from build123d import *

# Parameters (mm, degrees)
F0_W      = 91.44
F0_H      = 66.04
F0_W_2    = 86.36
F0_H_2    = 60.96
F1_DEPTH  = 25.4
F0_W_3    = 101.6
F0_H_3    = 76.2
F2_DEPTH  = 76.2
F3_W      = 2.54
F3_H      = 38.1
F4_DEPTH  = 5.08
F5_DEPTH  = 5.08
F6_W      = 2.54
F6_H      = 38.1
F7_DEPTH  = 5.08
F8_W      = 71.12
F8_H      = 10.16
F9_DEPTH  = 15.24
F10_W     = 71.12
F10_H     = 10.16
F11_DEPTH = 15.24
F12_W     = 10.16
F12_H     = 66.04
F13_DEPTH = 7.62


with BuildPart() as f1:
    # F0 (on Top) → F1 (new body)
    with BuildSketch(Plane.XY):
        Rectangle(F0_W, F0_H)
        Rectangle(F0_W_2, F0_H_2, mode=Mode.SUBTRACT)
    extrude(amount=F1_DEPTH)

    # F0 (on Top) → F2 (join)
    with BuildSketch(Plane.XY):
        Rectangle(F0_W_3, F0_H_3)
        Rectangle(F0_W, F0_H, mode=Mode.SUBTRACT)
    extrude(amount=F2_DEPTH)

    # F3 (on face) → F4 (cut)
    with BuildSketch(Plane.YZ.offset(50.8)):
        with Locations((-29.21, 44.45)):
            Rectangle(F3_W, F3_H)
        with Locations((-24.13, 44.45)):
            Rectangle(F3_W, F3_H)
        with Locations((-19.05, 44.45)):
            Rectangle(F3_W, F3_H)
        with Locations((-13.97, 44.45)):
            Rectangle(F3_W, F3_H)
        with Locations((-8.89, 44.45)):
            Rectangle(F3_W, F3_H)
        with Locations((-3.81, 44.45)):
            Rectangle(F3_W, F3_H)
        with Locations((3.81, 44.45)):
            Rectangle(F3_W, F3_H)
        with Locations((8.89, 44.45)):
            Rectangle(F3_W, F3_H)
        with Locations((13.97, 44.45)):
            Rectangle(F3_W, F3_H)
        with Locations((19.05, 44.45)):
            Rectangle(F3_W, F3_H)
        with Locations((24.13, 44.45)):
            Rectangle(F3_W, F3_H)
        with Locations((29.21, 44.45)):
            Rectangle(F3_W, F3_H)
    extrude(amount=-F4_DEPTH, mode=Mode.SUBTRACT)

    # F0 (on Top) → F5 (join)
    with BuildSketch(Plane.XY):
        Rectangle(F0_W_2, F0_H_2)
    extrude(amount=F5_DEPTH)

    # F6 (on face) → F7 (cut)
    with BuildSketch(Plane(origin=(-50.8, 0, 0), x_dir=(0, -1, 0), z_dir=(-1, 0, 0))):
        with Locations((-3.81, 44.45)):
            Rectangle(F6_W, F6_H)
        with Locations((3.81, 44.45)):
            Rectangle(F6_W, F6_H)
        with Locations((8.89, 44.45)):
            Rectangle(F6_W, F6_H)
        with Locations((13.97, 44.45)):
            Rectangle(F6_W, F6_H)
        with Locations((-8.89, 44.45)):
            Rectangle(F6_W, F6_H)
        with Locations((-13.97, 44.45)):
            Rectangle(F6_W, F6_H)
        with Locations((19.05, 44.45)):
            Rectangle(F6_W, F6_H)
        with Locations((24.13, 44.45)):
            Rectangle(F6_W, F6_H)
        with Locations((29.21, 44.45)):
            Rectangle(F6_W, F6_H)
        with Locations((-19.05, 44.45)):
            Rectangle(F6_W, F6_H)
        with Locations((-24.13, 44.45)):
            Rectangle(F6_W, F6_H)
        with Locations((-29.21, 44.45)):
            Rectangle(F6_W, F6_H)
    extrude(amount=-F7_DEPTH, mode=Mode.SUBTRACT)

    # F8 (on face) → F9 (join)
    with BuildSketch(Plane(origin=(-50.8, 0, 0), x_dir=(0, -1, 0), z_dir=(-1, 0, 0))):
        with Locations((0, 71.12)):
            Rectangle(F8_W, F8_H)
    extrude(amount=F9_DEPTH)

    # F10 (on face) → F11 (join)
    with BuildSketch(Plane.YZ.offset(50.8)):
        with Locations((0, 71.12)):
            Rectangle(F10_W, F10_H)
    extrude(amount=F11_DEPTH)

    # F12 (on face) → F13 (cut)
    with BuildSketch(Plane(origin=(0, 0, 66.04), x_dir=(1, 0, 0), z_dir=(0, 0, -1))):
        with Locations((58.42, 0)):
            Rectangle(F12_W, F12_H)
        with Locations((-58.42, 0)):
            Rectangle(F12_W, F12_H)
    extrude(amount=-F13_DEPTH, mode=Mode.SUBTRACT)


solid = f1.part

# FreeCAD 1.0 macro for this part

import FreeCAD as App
import Part
import Sketcher
Q = App.Units.Quantity

doc = App.newDocument("Part")
body = doc.addObject("PartDesign::Body", "Body")

# Sketch on XY plane
sketch1 = body.newObject("Sketcher::SketchObject", "Sketch")
sketch1.AttachmentSupport = (doc.getObject("XY_Plane"), [""])
sketch1.MapMode = "FlatFace"
sketch1.addGeometry(Part.LineSegment(App.Vector(-45.72, 33.02, 0), App.Vector(-45.72, -33.02, 0)), False)
sketch1.addGeometry(Part.LineSegment(App.Vector(-45.72, -33.02, 0), App.Vector(45.72, -33.02, 0)), False)
sketch1.addGeometry(Part.LineSegment(App.Vector(45.72, -33.02, 0), App.Vector(45.72, 33.02, 0)), False)
sketch1.addGeometry(Part.LineSegment(App.Vector(45.72, 33.02, 0), App.Vector(-45.72, 33.02, 0)), False)
sketch1.addGeometry(Part.LineSegment(App.Vector(43.18, -30.48, 0), App.Vector(-43.18, -30.48, 0)), False)
sketch1.addGeometry(Part.LineSegment(App.Vector(-43.18, -30.48, 0), App.Vector(-43.18, 30.48, 0)), False)
sketch1.addGeometry(Part.LineSegment(App.Vector(-43.18, 30.48, 0), App.Vector(43.18, 30.48, 0)), False)
sketch1.addGeometry(Part.LineSegment(App.Vector(43.18, 30.48, 0), App.Vector(43.18, -30.48, 0)), False)
sketch1.addConstraint(Sketcher.Constraint("Coincident", 0, 2, 1, 1))
sketch1.addConstraint(Sketcher.Constraint("Coincident", 1, 2, 2, 1))
sketch1.addConstraint(Sketcher.Constraint("Coincident", 2, 2, 3, 1))
sketch1.addConstraint(Sketcher.Constraint("Coincident", 3, 2, 0, 1))
sketch1.addConstraint(Sketcher.Constraint("Coincident", 4, 2, 5, 1))
sketch1.addConstraint(Sketcher.Constraint("Coincident", 5, 2, 6, 1))
sketch1.addConstraint(Sketcher.Constraint("Coincident", 6, 2, 7, 1))
sketch1.addConstraint(Sketcher.Constraint("Coincident", 7, 2, 4, 1))
sketch1.addConstraint(Sketcher.Constraint("Vertical", 0))
sketch1.addConstraint(Sketcher.Constraint("Horizontal", 1))
sketch1.addConstraint(Sketcher.Constraint("Vertical", 2))
sketch1.addConstraint(Sketcher.Constraint("Horizontal", 3))
sketch1.addConstraint(Sketcher.Constraint("Horizontal", 4))
sketch1.addConstraint(Sketcher.Constraint("Vertical", 5))
sketch1.addConstraint(Sketcher.Constraint("Horizontal", 6))
sketch1.addConstraint(Sketcher.Constraint("Vertical", 7))
sketch1.addConstraint(Sketcher.Constraint("Symmetric", 0, 2, 2, 2, -1, 1))
sketch1.addConstraint(Sketcher.Constraint("Symmetric", 4, 2, 6, 2, -1, 1))
sketch1.addConstraint(Sketcher.Constraint("DistanceX", 1, 1, 1, 2, Q("3.6 in")))
sketch1.addConstraint(Sketcher.Constraint("DistanceX", 4, 2, 4, 1, Q("3.4 in")))
sketch1.addConstraint(Sketcher.Constraint("DistanceY", 0, 2, 0, 1, Q("2.6 in")))
sketch1.addConstraint(Sketcher.Constraint("DistanceY", 5, 1, 5, 2, Q("2.4 in")))
pad1 = body.newObject("PartDesign::Pad", "Pad")
pad1.Profile = sketch1
pad1.Length = Q("1 in")

# Sketch on XY plane
sketch2 = body.newObject("Sketcher::SketchObject", "Sketch001")
sketch2.AttachmentSupport = (doc.getObject("XY_Plane"), [""])
sketch2.MapMode = "FlatFace"
sketch2.addGeometry(Part.LineSegment(App.Vector(-50.8, 38.1, 0), App.Vector(-50.8, -38.1, 0)), False)
sketch2.addGeometry(Part.LineSegment(App.Vector(-50.8, -38.1, 0), App.Vector(50.8, -38.1, 0)), False)
sketch2.addGeometry(Part.LineSegment(App.Vector(50.8, -38.1, 0), App.Vector(50.8, 38.1, 0)), False)
sketch2.addGeometry(Part.LineSegment(App.Vector(50.8, 38.1, 0), App.Vector(-50.8, 38.1, 0)), False)
sketch2.addGeometry(Part.LineSegment(App.Vector(45.72, -33.02, 0), App.Vector(-45.72, -33.02, 0)), False)
sketch2.addGeometry(Part.LineSegment(App.Vector(-45.72, -33.02, 0), App.Vector(-45.72, 33.02, 0)), False)
sketch2.addGeometry(Part.LineSegment(App.Vector(-45.72, 33.02, 0), App.Vector(45.72, 33.02, 0)), False)
sketch2.addGeometry(Part.LineSegment(App.Vector(45.72, 33.02, 0), App.Vector(45.72, -33.02, 0)), False)
sketch2.addConstraint(Sketcher.Constraint("Coincident", 0, 2, 1, 1))
sketch2.addConstraint(Sketcher.Constraint("Coincident", 1, 2, 2, 1))
sketch2.addConstraint(Sketcher.Constraint("Coincident", 2, 2, 3, 1))
sketch2.addConstraint(Sketcher.Constraint("Coincident", 3, 2, 0, 1))
sketch2.addConstraint(Sketcher.Constraint("Coincident", 4, 2, 5, 1))
sketch2.addConstraint(Sketcher.Constraint("Coincident", 5, 2, 6, 1))
sketch2.addConstraint(Sketcher.Constraint("Coincident", 6, 2, 7, 1))
sketch2.addConstraint(Sketcher.Constraint("Coincident", 7, 2, 4, 1))
sketch2.addConstraint(Sketcher.Constraint("Vertical", 0))
sketch2.addConstraint(Sketcher.Constraint("Horizontal", 1))
sketch2.addConstraint(Sketcher.Constraint("Vertical", 2))
sketch2.addConstraint(Sketcher.Constraint("Horizontal", 3))
sketch2.addConstraint(Sketcher.Constraint("Horizontal", 4))
sketch2.addConstraint(Sketcher.Constraint("Vertical", 5))
sketch2.addConstraint(Sketcher.Constraint("Horizontal", 6))
sketch2.addConstraint(Sketcher.Constraint("Vertical", 7))
sketch2.addConstraint(Sketcher.Constraint("Symmetric", 0, 2, 2, 2, -1, 1))
sketch2.addConstraint(Sketcher.Constraint("Symmetric", 4, 2, 6, 2, -1, 1))
sketch2.addConstraint(Sketcher.Constraint("DistanceX", 1, 1, 1, 2, Q("4 in")))
sketch2.addConstraint(Sketcher.Constraint("DistanceY", 0, 2, 0, 1, Q("3 in")))
sketch2.addConstraint(Sketcher.Constraint("DistanceX", 4, 2, 4, 1, Q("3.6 in")))
sketch2.addConstraint(Sketcher.Constraint("DistanceY", 5, 1, 5, 2, Q("2.6 in")))
pad2 = body.newObject("PartDesign::Pad", "Pad001")
pad2.Profile = sketch2
pad2.Length = Q("3 in")

# Sketch on YZ plane
sketch3 = body.newObject("Sketcher::SketchObject", "Sketch002")
sketch3.AttachmentSupport = (doc.getObject("YZ_Plane"), [""])
sketch3.MapMode = "FlatFace"
sketch3.AttachmentOffset = App.Placement(App.Vector(0, 0, 2 * 25.4), App.Rotation())
sketch3.addGeometry(Part.LineSegment(App.Vector(-30.48, 63.5, 0), App.Vector(-30.48, 25.4, 0)), False)
sketch3.addGeometry(Part.LineSegment(App.Vector(-30.48, 25.4, 0), App.Vector(-27.94, 25.4, 0)), False)
sketch3.addGeometry(Part.LineSegment(App.Vector(-27.94, 25.4, 0), App.Vector(-27.94, 63.5, 0)), False)
sketch3.addGeometry(Part.LineSegment(App.Vector(-27.94, 63.5, 0), App.Vector(-30.48, 63.5, 0)), False)
sketch3.addGeometry(Part.LineSegment(App.Vector(-25.4, 63.5, 0), App.Vector(-25.4, 25.4, 0)), False)
sketch3.addGeometry(Part.LineSegment(App.Vector(-25.4, 25.4, 0), App.Vector(-22.86, 25.4, 0)), False)
sketch3.addGeometry(Part.LineSegment(App.Vector(-22.86, 25.4, 0), App.Vector(-22.86, 63.5, 0)), False)
sketch3.addGeometry(Part.LineSegment(App.Vector(-22.86, 63.5, 0), App.Vector(-25.4, 63.5, 0)), False)
sketch3.addGeometry(Part.LineSegment(App.Vector(-20.32, 63.5, 0), App.Vector(-20.32, 25.4, 0)), False)
sketch3.addGeometry(Part.LineSegment(App.Vector(-20.32, 25.4, 0), App.Vector(-17.78, 25.4, 0)), False)
sketch3.addGeometry(Part.LineSegment(App.Vector(-17.78, 25.4, 0), App.Vector(-17.78, 63.5, 0)), False)
sketch3.addGeometry(Part.LineSegment(App.Vector(-17.78, 63.5, 0), App.Vector(-20.32, 63.5, 0)), False)
sketch3.addGeometry(Part.LineSegment(App.Vector(-15.24, 63.5, 0), App.Vector(-15.24, 25.4, 0)), False)
sketch3.addGeometry(Part.LineSegment(App.Vector(-15.24, 25.4, 0), App.Vector(-12.7, 25.4, 0)), False)
sketch3.addGeometry(Part.LineSegment(App.Vector(-12.7, 25.4, 0), App.Vector(-12.7, 63.5, 0)), False)
sketch3.addGeometry(Part.LineSegment(App.Vector(-12.7, 63.5, 0), App.Vector(-15.24, 63.5, 0)), False)
sketch3.addGeometry(Part.LineSegment(App.Vector(-10.16, 63.5, 0), App.Vector(-10.16, 25.4, 0)), False)
sketch3.addGeometry(Part.LineSegment(App.Vector(-10.16, 25.4, 0), App.Vector(-7.62, 25.4, 0)), False)
sketch3.addGeometry(Part.LineSegment(App.Vector(-7.62, 25.4, 0), App.Vector(-7.62, 63.5, 0)), False)
sketch3.addGeometry(Part.LineSegment(App.Vector(-7.62, 63.5, 0), App.Vector(-10.16, 63.5, 0)), False)
sketch3.addGeometry(Part.LineSegment(App.Vector(-5.08, 63.5, 0), App.Vector(-5.08, 25.4, 0)), False)
sketch3.addGeometry(Part.LineSegment(App.Vector(-5.08, 25.4, 0), App.Vector(-2.54, 25.4, 0)), False)
sketch3.addGeometry(Part.LineSegment(App.Vector(-2.54, 25.4, 0), App.Vector(-2.54, 63.5, 0)), False)
sketch3.addGeometry(Part.LineSegment(App.Vector(-2.54, 63.5, 0), App.Vector(-5.08, 63.5, 0)), False)
sketch3.addGeometry(Part.LineSegment(App.Vector(2.54, 63.5, 0), App.Vector(2.54, 25.4, 0)), False)
sketch3.addGeometry(Part.LineSegment(App.Vector(2.54, 25.4, 0), App.Vector(5.08, 25.4, 0)), False)
sketch3.addGeometry(Part.LineSegment(App.Vector(5.08, 25.4, 0), App.Vector(5.08, 63.5, 0)), False)
sketch3.addGeometry(Part.LineSegment(App.Vector(5.08, 63.5, 0), App.Vector(2.54, 63.5, 0)), False)
sketch3.addGeometry(Part.LineSegment(App.Vector(7.62, 63.5, 0), App.Vector(7.62, 25.4, 0)), False)
sketch3.addGeometry(Part.LineSegment(App.Vector(7.62, 25.4, 0), App.Vector(10.16, 25.4, 0)), False)
sketch3.addGeometry(Part.LineSegment(App.Vector(10.16, 25.4, 0), App.Vector(10.16, 63.5, 0)), False)
sketch3.addGeometry(Part.LineSegment(App.Vector(10.16, 63.5, 0), App.Vector(7.62, 63.5, 0)), False)
sketch3.addGeometry(Part.LineSegment(App.Vector(12.7, 63.5, 0), App.Vector(12.7, 25.4, 0)), False)
sketch3.addGeometry(Part.LineSegment(App.Vector(12.7, 25.4, 0), App.Vector(15.24, 25.4, 0)), False)
sketch3.addGeometry(Part.LineSegment(App.Vector(15.24, 25.4, 0), App.Vector(15.24, 63.5, 0)), False)
sketch3.addGeometry(Part.LineSegment(App.Vector(15.24, 63.5, 0), App.Vector(12.7, 63.5, 0)), False)
sketch3.addGeometry(Part.LineSegment(App.Vector(17.78, 63.5, 0), App.Vector(17.78, 25.4, 0)), False)
sketch3.addGeometry(Part.LineSegment(App.Vector(17.78, 25.4, 0), App.Vector(20.32, 25.4, 0)), False)
sketch3.addGeometry(Part.LineSegment(App.Vector(20.32, 25.4, 0), App.Vector(20.32, 63.5, 0)), False)
sketch3.addGeometry(Part.LineSegment(App.Vector(20.32, 63.5, 0), App.Vector(17.78, 63.5, 0)), False)
sketch3.addGeometry(Part.LineSegment(App.Vector(22.86, 63.5, 0), App.Vector(22.86, 25.4, 0)), False)
sketch3.addGeometry(Part.LineSegment(App.Vector(22.86, 25.4, 0), App.Vector(25.4, 25.4, 0)), False)
sketch3.addGeometry(Part.LineSegment(App.Vector(25.4, 25.4, 0), App.Vector(25.4, 63.5, 0)), False)
sketch3.addGeometry(Part.LineSegment(App.Vector(25.4, 63.5, 0), App.Vector(22.86, 63.5, 0)), False)
sketch3.addGeometry(Part.LineSegment(App.Vector(27.94, 63.5, 0), App.Vector(27.94, 25.4, 0)), False)
sketch3.addGeometry(Part.LineSegment(App.Vector(27.94, 25.4, 0), App.Vector(30.48, 25.4, 0)), False)
sketch3.addGeometry(Part.LineSegment(App.Vector(30.48, 25.4, 0), App.Vector(30.48, 63.5, 0)), False)
sketch3.addGeometry(Part.LineSegment(App.Vector(30.48, 63.5, 0), App.Vector(27.94, 63.5, 0)), False)
sketch3.addConstraint(Sketcher.Constraint("Coincident", 0, 2, 1, 1))
sketch3.addConstraint(Sketcher.Constraint("Coincident", 1, 2, 2, 1))
sketch3.addConstraint(Sketcher.Constraint("Coincident", 2, 2, 3, 1))
sketch3.addConstraint(Sketcher.Constraint("Coincident", 3, 2, 0, 1))
sketch3.addConstraint(Sketcher.Constraint("Coincident", 4, 2, 5, 1))
sketch3.addConstraint(Sketcher.Constraint("Coincident", 5, 2, 6, 1))
sketch3.addConstraint(Sketcher.Constraint("Coincident", 6, 2, 7, 1))
sketch3.addConstraint(Sketcher.Constraint("Coincident", 7, 2, 4, 1))
sketch3.addConstraint(Sketcher.Constraint("Coincident", 8, 2, 9, 1))
sketch3.addConstraint(Sketcher.Constraint("Coincident", 9, 2, 10, 1))
sketch3.addConstraint(Sketcher.Constraint("Coincident", 10, 2, 11, 1))
sketch3.addConstraint(Sketcher.Constraint("Coincident", 11, 2, 8, 1))
sketch3.addConstraint(Sketcher.Constraint("Coincident", 12, 2, 13, 1))
sketch3.addConstraint(Sketcher.Constraint("Coincident", 13, 2, 14, 1))
sketch3.addConstraint(Sketcher.Constraint("Coincident", 14, 2, 15, 1))
sketch3.addConstraint(Sketcher.Constraint("Coincident", 15, 2, 12, 1))
sketch3.addConstraint(Sketcher.Constraint("Coincident", 16, 2, 17, 1))
sketch3.addConstraint(Sketcher.Constraint("Coincident", 17, 2, 18, 1))
sketch3.addConstraint(Sketcher.Constraint("Coincident", 18, 2, 19, 1))
sketch3.addConstraint(Sketcher.Constraint("Coincident", 19, 2, 16, 1))
sketch3.addConstraint(Sketcher.Constraint("Coincident", 20, 2, 21, 1))
sketch3.addConstraint(Sketcher.Constraint("Coincident", 21, 2, 22, 1))
sketch3.addConstraint(Sketcher.Constraint("Coincident", 22, 2, 23, 1))
sketch3.addConstraint(Sketcher.Constraint("Coincident", 23, 2, 20, 1))
sketch3.addConstraint(Sketcher.Constraint("Coincident", 24, 2, 25, 1))
sketch3.addConstraint(Sketcher.Constraint("Coincident", 25, 2, 26, 1))
sketch3.addConstraint(Sketcher.Constraint("Coincident", 26, 2, 27, 1))
sketch3.addConstraint(Sketcher.Constraint("Coincident", 27, 2, 24, 1))
sketch3.addConstraint(Sketcher.Constraint("Coincident", 28, 2, 29, 1))
sketch3.addConstraint(Sketcher.Constraint("Coincident", 29, 2, 30, 1))
sketch3.addConstraint(Sketcher.Constraint("Coincident", 30, 2, 31, 1))
sketch3.addConstraint(Sketcher.Constraint("Coincident", 31, 2, 28, 1))
sketch3.addConstraint(Sketcher.Constraint("Coincident", 32, 2, 33, 1))
sketch3.addConstraint(Sketcher.Constraint("Coincident", 33, 2, 34, 1))
sketch3.addConstraint(Sketcher.Constraint("Coincident", 34, 2, 35, 1))
sketch3.addConstraint(Sketcher.Constraint("Coincident", 35, 2, 32, 1))
sketch3.addConstraint(Sketcher.Constraint("Coincident", 36, 2, 37, 1))
sketch3.addConstraint(Sketcher.Constraint("Coincident", 37, 2, 38, 1))
sketch3.addConstraint(Sketcher.Constraint("Coincident", 38, 2, 39, 1))
sketch3.addConstraint(Sketcher.Constraint("Coincident", 39, 2, 36, 1))
sketch3.addConstraint(Sketcher.Constraint("Coincident", 40, 2, 41, 1))
sketch3.addConstraint(Sketcher.Constraint("Coincident", 41, 2, 42, 1))
sketch3.addConstraint(Sketcher.Constraint("Coincident", 42, 2, 43, 1))
sketch3.addConstraint(Sketcher.Constraint("Coincident", 43, 2, 40, 1))
sketch3.addConstraint(Sketcher.Constraint("Coincident", 44, 2, 45, 1))
sketch3.addConstraint(Sketcher.Constraint("Coincident", 45, 2, 46, 1))
sketch3.addConstraint(Sketcher.Constraint("Coincident", 46, 2, 47, 1))
sketch3.addConstraint(Sketcher.Constraint("Coincident", 47, 2, 44, 1))
sketch3.addConstraint(Sketcher.Constraint("Vertical", 0))
sketch3.addConstraint(Sketcher.Constraint("Horizontal", 1))
sketch3.addConstraint(Sketcher.Constraint("Vertical", 2))
sketch3.addConstraint(Sketcher.Constraint("Horizontal", 3))
sketch3.addConstraint(Sketcher.Constraint("Vertical", 4))
sketch3.addConstraint(Sketcher.Constraint("Horizontal", 5))
sketch3.addConstraint(Sketcher.Constraint("Vertical", 6))
sketch3.addConstraint(Sketcher.Constraint("Horizontal", 7))
sketch3.addConstraint(Sketcher.Constraint("Vertical", 8))
sketch3.addConstraint(Sketcher.Constraint("Horizontal", 9))
sketch3.addConstraint(Sketcher.Constraint("Vertical", 10))
sketch3.addConstraint(Sketcher.Constraint("Horizontal", 11))
sketch3.addConstraint(Sketcher.Constraint("Vertical", 12))
sketch3.addConstraint(Sketcher.Constraint("Horizontal", 13))
sketch3.addConstraint(Sketcher.Constraint("Vertical", 14))
sketch3.addConstraint(Sketcher.Constraint("Horizontal", 15))
sketch3.addConstraint(Sketcher.Constraint("Vertical", 16))
sketch3.addConstraint(Sketcher.Constraint("Horizontal", 17))
sketch3.addConstraint(Sketcher.Constraint("Vertical", 18))
sketch3.addConstraint(Sketcher.Constraint("Horizontal", 19))
sketch3.addConstraint(Sketcher.Constraint("Vertical", 20))
sketch3.addConstraint(Sketcher.Constraint("Horizontal", 21))
sketch3.addConstraint(Sketcher.Constraint("Vertical", 22))
sketch3.addConstraint(Sketcher.Constraint("Horizontal", 23))
sketch3.addConstraint(Sketcher.Constraint("Vertical", 24))
sketch3.addConstraint(Sketcher.Constraint("Horizontal", 25))
sketch3.addConstraint(Sketcher.Constraint("Vertical", 26))
sketch3.addConstraint(Sketcher.Constraint("Horizontal", 27))
sketch3.addConstraint(Sketcher.Constraint("Vertical", 28))
sketch3.addConstraint(Sketcher.Constraint("Horizontal", 29))
sketch3.addConstraint(Sketcher.Constraint("Vertical", 30))
sketch3.addConstraint(Sketcher.Constraint("Horizontal", 31))
sketch3.addConstraint(Sketcher.Constraint("Vertical", 32))
sketch3.addConstraint(Sketcher.Constraint("Horizontal", 33))
sketch3.addConstraint(Sketcher.Constraint("Vertical", 34))
sketch3.addConstraint(Sketcher.Constraint("Horizontal", 35))
sketch3.addConstraint(Sketcher.Constraint("Vertical", 36))
sketch3.addConstraint(Sketcher.Constraint("Horizontal", 37))
sketch3.addConstraint(Sketcher.Constraint("Vertical", 38))
sketch3.addConstraint(Sketcher.Constraint("Horizontal", 39))
sketch3.addConstraint(Sketcher.Constraint("Vertical", 40))
sketch3.addConstraint(Sketcher.Constraint("Horizontal", 41))
sketch3.addConstraint(Sketcher.Constraint("Vertical", 42))
sketch3.addConstraint(Sketcher.Constraint("Horizontal", 43))
sketch3.addConstraint(Sketcher.Constraint("Vertical", 44))
sketch3.addConstraint(Sketcher.Constraint("Horizontal", 45))
sketch3.addConstraint(Sketcher.Constraint("Vertical", 46))
sketch3.addConstraint(Sketcher.Constraint("Horizontal", 47))
sketch3.addConstraint(Sketcher.Constraint("Symmetric", 21, 2, 24, 2, -2))
sketch3.addConstraint(Sketcher.Constraint("Symmetric", 23, 2, 26, 2, -2))
sketch3.addConstraint(Sketcher.Constraint("Symmetric", 17, 2, 28, 2, -2))
sketch3.addConstraint(Sketcher.Constraint("Symmetric", 19, 2, 30, 2, -2))
sketch3.addConstraint(Sketcher.Constraint("Symmetric", 13, 2, 32, 2, -2))
sketch3.addConstraint(Sketcher.Constraint("Symmetric", 15, 2, 34, 2, -2))
sketch3.addConstraint(Sketcher.Constraint("Symmetric", 9, 2, 36, 2, -2))
sketch3.addConstraint(Sketcher.Constraint("Symmetric", 11, 2, 38, 2, -2))
sketch3.addConstraint(Sketcher.Constraint("Symmetric", 5, 2, 40, 2, -2))
sketch3.addConstraint(Sketcher.Constraint("Symmetric", 7, 2, 42, 2, -2))
sketch3.addConstraint(Sketcher.Constraint("Symmetric", 1, 2, 44, 2, -2))
sketch3.addConstraint(Sketcher.Constraint("Symmetric", 3, 2, 46, 2, -2))
sketch3.addConstraint(Sketcher.Constraint("Horizontal", 1, 2, 4, 2))
sketch3.addConstraint(Sketcher.Constraint("Horizontal", 3, 2, 6, 2))
sketch3.addConstraint(Sketcher.Constraint("Horizontal", 5, 2, 8, 2))
sketch3.addConstraint(Sketcher.Constraint("Horizontal", 7, 2, 10, 2))
sketch3.addConstraint(Sketcher.Constraint("Horizontal", 9, 2, 12, 2))
sketch3.addConstraint(Sketcher.Constraint("Horizontal", 11, 2, 14, 2))
sketch3.addConstraint(Sketcher.Constraint("Horizontal", 13, 2, 16, 2))
sketch3.addConstraint(Sketcher.Constraint("Horizontal", 15, 2, 18, 2))
sketch3.addConstraint(Sketcher.Constraint("Horizontal", 17, 2, 20, 2))
sketch3.addConstraint(Sketcher.Constraint("Horizontal", 19, 2, 22, 2))
sketch3.addConstraint(Sketcher.Constraint("Equal", 3, 5))
sketch3.addConstraint(Sketcher.Constraint("Equal", 7, 9))
sketch3.addConstraint(Sketcher.Constraint("Equal", 11, 13))
sketch3.addConstraint(Sketcher.Constraint("Equal", 15, 17))
sketch3.addConstraint(Sketcher.Constraint("Equal", 19, 21))
sketch3.addConstraint(Sketcher.Constraint("DistanceX", 1, 1, 1, 2, Q("0.1 in")))
sketch3.addConstraint(Sketcher.Constraint("DistanceY", 0, 2, 0, 1, Q("1.5 in")))
sketch3.addConstraint(Sketcher.Constraint("DistanceY", -1, 1, 0, 2, Q("1 in")))
sketch3.addConstraint(Sketcher.Constraint("DistanceX", 4, 2, -1, 1, Q("1 in")))
sketch3.addConstraint(Sketcher.Constraint("DistanceX", 0, 2, -1, 1, Q("1.2 in")))
sketch3.addConstraint(Sketcher.Constraint("DistanceX", 8, 2, -1, 1, Q("0.8 in")))
sketch3.addConstraint(Sketcher.Constraint("DistanceX", 12, 2, -1, 1, Q("0.6 in")))
sketch3.addConstraint(Sketcher.Constraint("DistanceX", 16, 2, -1, 1, Q("0.4 in")))
sketch3.addConstraint(Sketcher.Constraint("DistanceX", 20, 2, -1, 1, Q("0.2 in")))
pocket1 = body.newObject("PartDesign::Pocket", "Pocket")
pocket1.Profile = sketch3
pocket1.Length = Q("0.2 in")

# Sketch on XY plane
sketch4 = body.newObject("Sketcher::SketchObject", "Sketch003")
sketch4.AttachmentSupport = (doc.getObject("XY_Plane"), [""])
sketch4.MapMode = "FlatFace"
sketch4.addGeometry(Part.LineSegment(App.Vector(-43.18, 30.48, 0), App.Vector(-43.18, -30.48, 0)), False)
sketch4.addGeometry(Part.LineSegment(App.Vector(-43.18, -30.48, 0), App.Vector(43.18, -30.48, 0)), False)
sketch4.addGeometry(Part.LineSegment(App.Vector(43.18, -30.48, 0), App.Vector(43.18, 30.48, 0)), False)
sketch4.addGeometry(Part.LineSegment(App.Vector(43.18, 30.48, 0), App.Vector(-43.18, 30.48, 0)), False)
sketch4.addConstraint(Sketcher.Constraint("Coincident", 0, 2, 1, 1))
sketch4.addConstraint(Sketcher.Constraint("Coincident", 1, 2, 2, 1))
sketch4.addConstraint(Sketcher.Constraint("Coincident", 2, 2, 3, 1))
sketch4.addConstraint(Sketcher.Constraint("Coincident", 3, 2, 0, 1))
sketch4.addConstraint(Sketcher.Constraint("Vertical", 0))
sketch4.addConstraint(Sketcher.Constraint("Horizontal", 1))
sketch4.addConstraint(Sketcher.Constraint("Vertical", 2))
sketch4.addConstraint(Sketcher.Constraint("Horizontal", 3))
sketch4.addConstraint(Sketcher.Constraint("Symmetric", 0, 2, 2, 2, -1, 1))
sketch4.addConstraint(Sketcher.Constraint("DistanceX", 1, 1, 1, 2, Q("3.4 in")))
sketch4.addConstraint(Sketcher.Constraint("DistanceY", 0, 2, 0, 1, Q("2.4 in")))
pad3 = body.newObject("PartDesign::Pad", "Pad002")
pad3.Profile = sketch4
pad3.Length = Q("0.2 in")

# Sketch on YZ plane
sketch5 = body.newObject("Sketcher::SketchObject", "Sketch004")
sketch5.AttachmentSupport = (doc.getObject("YZ_Plane"), [""])
sketch5.MapMode = "FlatFace"
sketch5.AttachmentOffset = App.Placement(App.Vector(0, 0, -2 * 25.4), App.Rotation())
sketch5.addGeometry(Part.LineSegment(App.Vector(5.08, 63.5, 0), App.Vector(5.08, 25.4, 0)), False)
sketch5.addGeometry(Part.LineSegment(App.Vector(5.08, 25.4, 0), App.Vector(2.54, 25.4, 0)), False)
sketch5.addGeometry(Part.LineSegment(App.Vector(2.54, 25.4, 0), App.Vector(2.54, 63.5, 0)), False)
sketch5.addGeometry(Part.LineSegment(App.Vector(2.54, 63.5, 0), App.Vector(5.08, 63.5, 0)), False)
sketch5.addGeometry(Part.LineSegment(App.Vector(-2.54, 63.5, 0), App.Vector(-2.54, 25.4, 0)), False)
sketch5.addGeometry(Part.LineSegment(App.Vector(-2.54, 25.4, 0), App.Vector(-5.08, 25.4, 0)), False)
sketch5.addGeometry(Part.LineSegment(App.Vector(-5.08, 25.4, 0), App.Vector(-5.08, 63.5, 0)), False)
sketch5.addGeometry(Part.LineSegment(App.Vector(-5.08, 63.5, 0), App.Vector(-2.54, 63.5, 0)), False)
sketch5.addGeometry(Part.LineSegment(App.Vector(-7.62, 63.5, 0), App.Vector(-7.62, 25.4, 0)), False)
sketch5.addGeometry(Part.LineSegment(App.Vector(-7.62, 25.4, 0), App.Vector(-10.16, 25.4, 0)), False)
sketch5.addGeometry(Part.LineSegment(App.Vector(-10.16, 25.4, 0), App.Vector(-10.16, 63.5, 0)), False)
sketch5.addGeometry(Part.LineSegment(App.Vector(-10.16, 63.5, 0), App.Vector(-7.62, 63.5, 0)), False)
sketch5.addGeometry(Part.LineSegment(App.Vector(-12.7, 63.5, 0), App.Vector(-12.7, 25.4, 0)), False)
sketch5.addGeometry(Part.LineSegment(App.Vector(-12.7, 25.4, 0), App.Vector(-15.24, 25.4, 0)), False)
sketch5.addGeometry(Part.LineSegment(App.Vector(-15.24, 25.4, 0), App.Vector(-15.24, 63.5, 0)), False)
sketch5.addGeometry(Part.LineSegment(App.Vector(-15.24, 63.5, 0), App.Vector(-12.7, 63.5, 0)), False)
sketch5.addGeometry(Part.LineSegment(App.Vector(10.16, 63.5, 0), App.Vector(10.16, 25.4, 0)), False)
sketch5.addGeometry(Part.LineSegment(App.Vector(10.16, 25.4, 0), App.Vector(7.62, 25.4, 0)), False)
sketch5.addGeometry(Part.LineSegment(App.Vector(7.62, 25.4, 0), App.Vector(7.62, 63.5, 0)), False)
sketch5.addGeometry(Part.LineSegment(App.Vector(7.62, 63.5, 0), App.Vector(10.16, 63.5, 0)), False)
sketch5.addGeometry(Part.LineSegment(App.Vector(15.24, 63.5, 0), App.Vector(15.24, 25.4, 0)), False)
sketch5.addGeometry(Part.LineSegment(App.Vector(15.24, 25.4, 0), App.Vector(12.7, 25.4, 0)), False)
sketch5.addGeometry(Part.LineSegment(App.Vector(12.7, 25.4, 0), App.Vector(12.7, 63.5, 0)), False)
sketch5.addGeometry(Part.LineSegment(App.Vector(12.7, 63.5, 0), App.Vector(15.24, 63.5, 0)), False)
sketch5.addGeometry(Part.LineSegment(App.Vector(-17.78, 63.5, 0), App.Vector(-17.78, 25.4, 0)), False)
sketch5.addGeometry(Part.LineSegment(App.Vector(-17.78, 25.4, 0), App.Vector(-20.32, 25.4, 0)), False)
sketch5.addGeometry(Part.LineSegment(App.Vector(-20.32, 25.4, 0), App.Vector(-20.32, 63.5, 0)), False)
sketch5.addGeometry(Part.LineSegment(App.Vector(-20.32, 63.5, 0), App.Vector(-17.78, 63.5, 0)), False)
sketch5.addGeometry(Part.LineSegment(App.Vector(-22.86, 63.5, 0), App.Vector(-22.86, 25.4, 0)), False)
sketch5.addGeometry(Part.LineSegment(App.Vector(-22.86, 25.4, 0), App.Vector(-25.4, 25.4, 0)), False)
sketch5.addGeometry(Part.LineSegment(App.Vector(-25.4, 25.4, 0), App.Vector(-25.4, 63.5, 0)), False)
sketch5.addGeometry(Part.LineSegment(App.Vector(-25.4, 63.5, 0), App.Vector(-22.86, 63.5, 0)), False)
sketch5.addGeometry(Part.LineSegment(App.Vector(-27.94, 63.5, 0), App.Vector(-27.94, 25.4, 0)), False)
sketch5.addGeometry(Part.LineSegment(App.Vector(-27.94, 25.4, 0), App.Vector(-30.48, 25.4, 0)), False)
sketch5.addGeometry(Part.LineSegment(App.Vector(-30.48, 25.4, 0), App.Vector(-30.48, 63.5, 0)), False)
sketch5.addGeometry(Part.LineSegment(App.Vector(-30.48, 63.5, 0), App.Vector(-27.94, 63.5, 0)), False)
sketch5.addGeometry(Part.LineSegment(App.Vector(20.32, 63.5, 0), App.Vector(20.32, 25.4, 0)), False)
sketch5.addGeometry(Part.LineSegment(App.Vector(20.32, 25.4, 0), App.Vector(17.78, 25.4, 0)), False)
sketch5.addGeometry(Part.LineSegment(App.Vector(17.78, 25.4, 0), App.Vector(17.78, 63.5, 0)), False)
sketch5.addGeometry(Part.LineSegment(App.Vector(17.78, 63.5, 0), App.Vector(20.32, 63.5, 0)), False)
sketch5.addGeometry(Part.LineSegment(App.Vector(25.4, 63.5, 0), App.Vector(25.4, 25.4, 0)), False)
sketch5.addGeometry(Part.LineSegment(App.Vector(25.4, 25.4, 0), App.Vector(22.86, 25.4, 0)), False)
sketch5.addGeometry(Part.LineSegment(App.Vector(22.86, 25.4, 0), App.Vector(22.86, 63.5, 0)), False)
sketch5.addGeometry(Part.LineSegment(App.Vector(22.86, 63.5, 0), App.Vector(25.4, 63.5, 0)), False)
sketch5.addGeometry(Part.LineSegment(App.Vector(30.48, 63.5, 0), App.Vector(30.48, 25.4, 0)), False)
sketch5.addGeometry(Part.LineSegment(App.Vector(30.48, 25.4, 0), App.Vector(27.94, 25.4, 0)), False)
sketch5.addGeometry(Part.LineSegment(App.Vector(27.94, 25.4, 0), App.Vector(27.94, 63.5, 0)), False)
sketch5.addGeometry(Part.LineSegment(App.Vector(27.94, 63.5, 0), App.Vector(30.48, 63.5, 0)), False)
sketch5.addConstraint(Sketcher.Constraint("Coincident", 0, 2, 1, 1))
sketch5.addConstraint(Sketcher.Constraint("Coincident", 1, 2, 2, 1))
sketch5.addConstraint(Sketcher.Constraint("Coincident", 2, 2, 3, 1))
sketch5.addConstraint(Sketcher.Constraint("Coincident", 3, 2, 0, 1))
sketch5.addConstraint(Sketcher.Constraint("Coincident", 4, 2, 5, 1))
sketch5.addConstraint(Sketcher.Constraint("Coincident", 5, 2, 6, 1))
sketch5.addConstraint(Sketcher.Constraint("Coincident", 6, 2, 7, 1))
sketch5.addConstraint(Sketcher.Constraint("Coincident", 7, 2, 4, 1))
sketch5.addConstraint(Sketcher.Constraint("Coincident", 8, 2, 9, 1))
sketch5.addConstraint(Sketcher.Constraint("Coincident", 9, 2, 10, 1))
sketch5.addConstraint(Sketcher.Constraint("Coincident", 10, 2, 11, 1))
sketch5.addConstraint(Sketcher.Constraint("Coincident", 11, 2, 8, 1))
sketch5.addConstraint(Sketcher.Constraint("Coincident", 12, 2, 13, 1))
sketch5.addConstraint(Sketcher.Constraint("Coincident", 13, 2, 14, 1))
sketch5.addConstraint(Sketcher.Constraint("Coincident", 14, 2, 15, 1))
sketch5.addConstraint(Sketcher.Constraint("Coincident", 15, 2, 12, 1))
sketch5.addConstraint(Sketcher.Constraint("Coincident", 16, 2, 17, 1))
sketch5.addConstraint(Sketcher.Constraint("Coincident", 17, 2, 18, 1))
sketch5.addConstraint(Sketcher.Constraint("Coincident", 18, 2, 19, 1))
sketch5.addConstraint(Sketcher.Constraint("Coincident", 19, 2, 16, 1))
sketch5.addConstraint(Sketcher.Constraint("Coincident", 20, 2, 21, 1))
sketch5.addConstraint(Sketcher.Constraint("Coincident", 21, 2, 22, 1))
sketch5.addConstraint(Sketcher.Constraint("Coincident", 22, 2, 23, 1))
sketch5.addConstraint(Sketcher.Constraint("Coincident", 23, 2, 20, 1))
sketch5.addConstraint(Sketcher.Constraint("Coincident", 24, 2, 25, 1))
sketch5.addConstraint(Sketcher.Constraint("Coincident", 25, 2, 26, 1))
sketch5.addConstraint(Sketcher.Constraint("Coincident", 26, 2, 27, 1))
sketch5.addConstraint(Sketcher.Constraint("Coincident", 27, 2, 24, 1))
sketch5.addConstraint(Sketcher.Constraint("Coincident", 28, 2, 29, 1))
sketch5.addConstraint(Sketcher.Constraint("Coincident", 29, 2, 30, 1))
sketch5.addConstraint(Sketcher.Constraint("Coincident", 30, 2, 31, 1))
sketch5.addConstraint(Sketcher.Constraint("Coincident", 31, 2, 28, 1))
sketch5.addConstraint(Sketcher.Constraint("Coincident", 32, 2, 33, 1))
sketch5.addConstraint(Sketcher.Constraint("Coincident", 33, 2, 34, 1))
sketch5.addConstraint(Sketcher.Constraint("Coincident", 34, 2, 35, 1))
sketch5.addConstraint(Sketcher.Constraint("Coincident", 35, 2, 32, 1))
sketch5.addConstraint(Sketcher.Constraint("Coincident", 36, 2, 37, 1))
sketch5.addConstraint(Sketcher.Constraint("Coincident", 37, 2, 38, 1))
sketch5.addConstraint(Sketcher.Constraint("Coincident", 38, 2, 39, 1))
sketch5.addConstraint(Sketcher.Constraint("Coincident", 39, 2, 36, 1))
sketch5.addConstraint(Sketcher.Constraint("Coincident", 40, 2, 41, 1))
sketch5.addConstraint(Sketcher.Constraint("Coincident", 41, 2, 42, 1))
sketch5.addConstraint(Sketcher.Constraint("Coincident", 42, 2, 43, 1))
sketch5.addConstraint(Sketcher.Constraint("Coincident", 43, 2, 40, 1))
sketch5.addConstraint(Sketcher.Constraint("Coincident", 44, 2, 45, 1))
sketch5.addConstraint(Sketcher.Constraint("Coincident", 45, 2, 46, 1))
sketch5.addConstraint(Sketcher.Constraint("Coincident", 46, 2, 47, 1))
sketch5.addConstraint(Sketcher.Constraint("Coincident", 47, 2, 44, 1))
sketch5.addConstraint(Sketcher.Constraint("Vertical", 0))
sketch5.addConstraint(Sketcher.Constraint("Horizontal", 1))
sketch5.addConstraint(Sketcher.Constraint("Vertical", 2))
sketch5.addConstraint(Sketcher.Constraint("Horizontal", 3))
sketch5.addConstraint(Sketcher.Constraint("Vertical", 4))
sketch5.addConstraint(Sketcher.Constraint("Horizontal", 5))
sketch5.addConstraint(Sketcher.Constraint("Vertical", 6))
sketch5.addConstraint(Sketcher.Constraint("Horizontal", 7))
sketch5.addConstraint(Sketcher.Constraint("Vertical", 8))
sketch5.addConstraint(Sketcher.Constraint("Horizontal", 9))
sketch5.addConstraint(Sketcher.Constraint("Vertical", 10))
sketch5.addConstraint(Sketcher.Constraint("Horizontal", 11))
sketch5.addConstraint(Sketcher.Constraint("Vertical", 12))
sketch5.addConstraint(Sketcher.Constraint("Horizontal", 13))
sketch5.addConstraint(Sketcher.Constraint("Vertical", 14))
sketch5.addConstraint(Sketcher.Constraint("Horizontal", 15))
sketch5.addConstraint(Sketcher.Constraint("Vertical", 16))
sketch5.addConstraint(Sketcher.Constraint("Horizontal", 17))
sketch5.addConstraint(Sketcher.Constraint("Vertical", 18))
sketch5.addConstraint(Sketcher.Constraint("Horizontal", 19))
sketch5.addConstraint(Sketcher.Constraint("Vertical", 20))
sketch5.addConstraint(Sketcher.Constraint("Horizontal", 21))
sketch5.addConstraint(Sketcher.Constraint("Vertical", 22))
sketch5.addConstraint(Sketcher.Constraint("Horizontal", 23))
sketch5.addConstraint(Sketcher.Constraint("Vertical", 24))
sketch5.addConstraint(Sketcher.Constraint("Horizontal", 25))
sketch5.addConstraint(Sketcher.Constraint("Vertical", 26))
sketch5.addConstraint(Sketcher.Constraint("Horizontal", 27))
sketch5.addConstraint(Sketcher.Constraint("Vertical", 28))
sketch5.addConstraint(Sketcher.Constraint("Horizontal", 29))
sketch5.addConstraint(Sketcher.Constraint("Vertical", 30))
sketch5.addConstraint(Sketcher.Constraint("Horizontal", 31))
sketch5.addConstraint(Sketcher.Constraint("Vertical", 32))
sketch5.addConstraint(Sketcher.Constraint("Horizontal", 33))
sketch5.addConstraint(Sketcher.Constraint("Vertical", 34))
sketch5.addConstraint(Sketcher.Constraint("Horizontal", 35))
sketch5.addConstraint(Sketcher.Constraint("Vertical", 36))
sketch5.addConstraint(Sketcher.Constraint("Horizontal", 37))
sketch5.addConstraint(Sketcher.Constraint("Vertical", 38))
sketch5.addConstraint(Sketcher.Constraint("Horizontal", 39))
sketch5.addConstraint(Sketcher.Constraint("Vertical", 40))
sketch5.addConstraint(Sketcher.Constraint("Horizontal", 41))
sketch5.addConstraint(Sketcher.Constraint("Vertical", 42))
sketch5.addConstraint(Sketcher.Constraint("Horizontal", 43))
sketch5.addConstraint(Sketcher.Constraint("Vertical", 44))
sketch5.addConstraint(Sketcher.Constraint("Horizontal", 45))
sketch5.addConstraint(Sketcher.Constraint("Vertical", 46))
sketch5.addConstraint(Sketcher.Constraint("Horizontal", 47))
sketch5.addConstraint(Sketcher.Constraint("Symmetric", 1, 2, 4, 2, -2))
sketch5.addConstraint(Sketcher.Constraint("Symmetric", 3, 2, 6, 2, -2))
sketch5.addConstraint(Sketcher.Constraint("Symmetric", 9, 2, 16, 2, -2))
sketch5.addConstraint(Sketcher.Constraint("Symmetric", 11, 2, 18, 2, -2))
sketch5.addConstraint(Sketcher.Constraint("Symmetric", 13, 2, 20, 2, -2))
sketch5.addConstraint(Sketcher.Constraint("Symmetric", 15, 2, 22, 2, -2))
sketch5.addConstraint(Sketcher.Constraint("Symmetric", 25, 2, 36, 2, -2))
sketch5.addConstraint(Sketcher.Constraint("Symmetric", 27, 2, 38, 2, -2))
sketch5.addConstraint(Sketcher.Constraint("Symmetric", 29, 2, 40, 2, -2))
sketch5.addConstraint(Sketcher.Constraint("Symmetric", 31, 2, 42, 2, -2))
sketch5.addConstraint(Sketcher.Constraint("Symmetric", 33, 2, 44, 2, -2))
sketch5.addConstraint(Sketcher.Constraint("Symmetric", 35, 2, 46, 2, -2))
sketch5.addConstraint(Sketcher.Constraint("Horizontal", 5, 2, 8, 2))
sketch5.addConstraint(Sketcher.Constraint("Horizontal", 7, 2, 10, 2))
sketch5.addConstraint(Sketcher.Constraint("Horizontal", 9, 2, 12, 2))
sketch5.addConstraint(Sketcher.Constraint("Horizontal", 11, 2, 14, 2))
sketch5.addConstraint(Sketcher.Constraint("Horizontal", 21, 2, 24, 2))
sketch5.addConstraint(Sketcher.Constraint("Horizontal", 23, 2, 26, 2))
sketch5.addConstraint(Sketcher.Constraint("Horizontal", 25, 2, 28, 2))
sketch5.addConstraint(Sketcher.Constraint("Horizontal", 27, 2, 30, 2))
sketch5.addConstraint(Sketcher.Constraint("Horizontal", 29, 2, 32, 2))
sketch5.addConstraint(Sketcher.Constraint("Horizontal", 31, 2, 34, 2))
sketch5.addConstraint(Sketcher.Constraint("Equal", 7, 9))
sketch5.addConstraint(Sketcher.Constraint("Equal", 11, 13))
sketch5.addConstraint(Sketcher.Constraint("Equal", 23, 25))
sketch5.addConstraint(Sketcher.Constraint("Equal", 27, 29))
sketch5.addConstraint(Sketcher.Constraint("Equal", 31, 33))
sketch5.addConstraint(Sketcher.Constraint("DistanceX", 1, 2, 1, 1, Q("0.1 in")))
sketch5.addConstraint(Sketcher.Constraint("DistanceY", 0, 2, 0, 1, Q("1.5 in")))
sketch5.addConstraint(Sketcher.Constraint("DistanceY", -1, 1, 0, 2, Q("1 in")))
sketch5.addConstraint(Sketcher.Constraint("DistanceX", 29, 2, -1, 1, Q("1 in")))
sketch5.addConstraint(Sketcher.Constraint("DistanceX", -1, 1, 0, 2, Q("0.2 in")))
sketch5.addConstraint(Sketcher.Constraint("DistanceX", 8, 2, -1, 1, Q("0.3 in")))
sketch5.addConstraint(Sketcher.Constraint("DistanceX", 12, 2, -1, 1, Q("0.5 in")))
sketch5.addConstraint(Sketcher.Constraint("DistanceX", 24, 2, -1, 1, Q("0.7 in")))
sketch5.addConstraint(Sketcher.Constraint("DistanceX", 32, 2, -1, 1, Q("1.1 in")))
pocket2 = body.newObject("PartDesign::Pocket", "Pocket001")
pocket2.Profile = sketch5
pocket2.Length = Q("0.2 in")
pocket2.Reversed = True

# Sketch on YZ plane
sketch6 = body.newObject("Sketcher::SketchObject", "Sketch005")
sketch6.AttachmentSupport = (doc.getObject("YZ_Plane"), [""])
sketch6.MapMode = "FlatFace"
sketch6.AttachmentOffset = App.Placement(App.Vector(0, 0, -2 * 25.4), App.Rotation())
sketch6.addGeometry(Part.LineSegment(App.Vector(35.56, 76.2, 0), App.Vector(35.56, 66.04, 0)), False)
sketch6.addGeometry(Part.LineSegment(App.Vector(35.56, 66.04, 0), App.Vector(-35.56, 66.04, 0)), False)
sketch6.addGeometry(Part.LineSegment(App.Vector(-35.56, 66.04, 0), App.Vector(-35.56, 76.2, 0)), False)
sketch6.addGeometry(Part.LineSegment(App.Vector(-35.56, 76.2, 0), App.Vector(35.56, 76.2, 0)), False)
sketch6.addConstraint(Sketcher.Constraint("Coincident", 0, 2, 1, 1))
sketch6.addConstraint(Sketcher.Constraint("Coincident", 1, 2, 2, 1))
sketch6.addConstraint(Sketcher.Constraint("Coincident", 2, 2, 3, 1))
sketch6.addConstraint(Sketcher.Constraint("Coincident", 3, 2, 0, 1))
sketch6.addConstraint(Sketcher.Constraint("Vertical", 0))
sketch6.addConstraint(Sketcher.Constraint("Horizontal", 1))
sketch6.addConstraint(Sketcher.Constraint("Vertical", 2))
sketch6.addConstraint(Sketcher.Constraint("Horizontal", 3))
sketch6.addConstraint(Sketcher.Constraint("DistanceX", 1, 2, 1, 1, Q("2.8 in")))
sketch6.addConstraint(Sketcher.Constraint("DistanceY", 0, 2, 0, 1, Q("0.4 in")))
sketch6.addConstraint(Sketcher.Constraint("DistanceY", -1, 1, 2, 2, Q("3 in")))
sketch6.addConstraint(Sketcher.Constraint("DistanceX", -1, 1, 0, 2, Q("1.4 in")))
pad4 = body.newObject("PartDesign::Pad", "Pad003")
pad4.Profile = sketch6
pad4.Length = Q("0.6 in")
pad4.Reversed = True

# Sketch on YZ plane
sketch7 = body.newObject("Sketcher::SketchObject", "Sketch006")
sketch7.AttachmentSupport = (doc.getObject("YZ_Plane"), [""])
sketch7.MapMode = "FlatFace"
sketch7.AttachmentOffset = App.Placement(App.Vector(0, 0, 2 * 25.4), App.Rotation())
sketch7.addGeometry(Part.LineSegment(App.Vector(-35.56, 76.2, 0), App.Vector(-35.56, 66.04, 0)), False)
sketch7.addGeometry(Part.LineSegment(App.Vector(-35.56, 66.04, 0), App.Vector(35.56, 66.04, 0)), False)
sketch7.addGeometry(Part.LineSegment(App.Vector(35.56, 66.04, 0), App.Vector(35.56, 76.2, 0)), False)
sketch7.addGeometry(Part.LineSegment(App.Vector(35.56, 76.2, 0), App.Vector(-35.56, 76.2, 0)), False)
sketch7.addConstraint(Sketcher.Constraint("Coincident", 0, 2, 1, 1))
sketch7.addConstraint(Sketcher.Constraint("Coincident", 1, 2, 2, 1))
sketch7.addConstraint(Sketcher.Constraint("Coincident", 2, 2, 3, 1))
sketch7.addConstraint(Sketcher.Constraint("Coincident", 3, 2, 0, 1))
sketch7.addConstraint(Sketcher.Constraint("Vertical", 0))
sketch7.addConstraint(Sketcher.Constraint("Horizontal", 1))
sketch7.addConstraint(Sketcher.Constraint("Vertical", 2))
sketch7.addConstraint(Sketcher.Constraint("Horizontal", 3))
sketch7.addConstraint(Sketcher.Constraint("DistanceX", 1, 1, 1, 2, Q("2.8 in")))
sketch7.addConstraint(Sketcher.Constraint("DistanceY", 0, 2, 0, 1, Q("0.4 in")))
sketch7.addConstraint(Sketcher.Constraint("DistanceY", -1, 1, 2, 2, Q("3 in")))
sketch7.addConstraint(Sketcher.Constraint("DistanceX", 0, 2, -1, 1, Q("1.4 in")))
pad5 = body.newObject("PartDesign::Pad", "Pad004")
pad5.Profile = sketch7
pad5.Length = Q("0.6 in")

# Sketch on XY plane
sketch8 = body.newObject("Sketcher::SketchObject", "Sketch007")
sketch8.AttachmentSupport = (doc.getObject("XY_Plane"), [""])
sketch8.MapMode = "FlatFace"
sketch8.AttachmentOffset = App.Placement(App.Vector(0, 0, 2.6 * 25.4), App.Rotation())
sketch8.addGeometry(Part.LineSegment(App.Vector(53.34, -33.02, 0), App.Vector(53.34, 33.02, 0)), False)
sketch8.addGeometry(Part.LineSegment(App.Vector(53.34, 33.02, 0), App.Vector(63.5, 33.02, 0)), False)
sketch8.addGeometry(Part.LineSegment(App.Vector(63.5, 33.02, 0), App.Vector(63.5, -33.02, 0)), False)
sketch8.addGeometry(Part.LineSegment(App.Vector(63.5, -33.02, 0), App.Vector(53.34, -33.02, 0)), False)
sketch8.addGeometry(Part.LineSegment(App.Vector(-63.5, -33.02, 0), App.Vector(-63.5, 33.02, 0)), False)
sketch8.addGeometry(Part.LineSegment(App.Vector(-63.5, 33.02, 0), App.Vector(-53.34, 33.02, 0)), False)
sketch8.addGeometry(Part.LineSegment(App.Vector(-53.34, 33.02, 0), App.Vector(-53.34, -33.02, 0)), False)
sketch8.addGeometry(Part.LineSegment(App.Vector(-53.34, -33.02, 0), App.Vector(-63.5, -33.02, 0)), False)
sketch8.addConstraint(Sketcher.Constraint("Coincident", 0, 2, 1, 1))
sketch8.addConstraint(Sketcher.Constraint("Coincident", 1, 2, 2, 1))
sketch8.addConstraint(Sketcher.Constraint("Coincident", 2, 2, 3, 1))
sketch8.addConstraint(Sketcher.Constraint("Coincident", 3, 2, 0, 1))
sketch8.addConstraint(Sketcher.Constraint("Coincident", 4, 2, 5, 1))
sketch8.addConstraint(Sketcher.Constraint("Coincident", 5, 2, 6, 1))
sketch8.addConstraint(Sketcher.Constraint("Coincident", 6, 2, 7, 1))
sketch8.addConstraint(Sketcher.Constraint("Coincident", 7, 2, 4, 1))
sketch8.addConstraint(Sketcher.Constraint("Vertical", 0))
sketch8.addConstraint(Sketcher.Constraint("Horizontal", 1))
sketch8.addConstraint(Sketcher.Constraint("Vertical", 2))
sketch8.addConstraint(Sketcher.Constraint("Horizontal", 3))
sketch8.addConstraint(Sketcher.Constraint("Vertical", 4))
sketch8.addConstraint(Sketcher.Constraint("Horizontal", 5))
sketch8.addConstraint(Sketcher.Constraint("Vertical", 6))
sketch8.addConstraint(Sketcher.Constraint("Horizontal", 7))
sketch8.addConstraint(Sketcher.Constraint("Symmetric", 2, 2, 4, 2, -1, 1))
sketch8.addConstraint(Sketcher.Constraint("Symmetric", 0, 2, 6, 2, -1, 1))
sketch8.addConstraint(Sketcher.Constraint("Horizontal", 1, 2, 4, 2))
sketch8.addConstraint(Sketcher.Constraint("DistanceX", 1, 1, 1, 2, Q("0.4 in")))
sketch8.addConstraint(Sketcher.Constraint("DistanceY", 0, 1, 0, 2, Q("2.6 in")))
sketch8.addConstraint(Sketcher.Constraint("DistanceX", 4, 2, 1, 2, Q("5 in")))
pocket3 = body.newObject("PartDesign::Pocket", "Pocket002")
pocket3.Profile = sketch8
pocket3.Length = Q("0.3 in")
pocket3.Reversed = True

doc.recompute()
